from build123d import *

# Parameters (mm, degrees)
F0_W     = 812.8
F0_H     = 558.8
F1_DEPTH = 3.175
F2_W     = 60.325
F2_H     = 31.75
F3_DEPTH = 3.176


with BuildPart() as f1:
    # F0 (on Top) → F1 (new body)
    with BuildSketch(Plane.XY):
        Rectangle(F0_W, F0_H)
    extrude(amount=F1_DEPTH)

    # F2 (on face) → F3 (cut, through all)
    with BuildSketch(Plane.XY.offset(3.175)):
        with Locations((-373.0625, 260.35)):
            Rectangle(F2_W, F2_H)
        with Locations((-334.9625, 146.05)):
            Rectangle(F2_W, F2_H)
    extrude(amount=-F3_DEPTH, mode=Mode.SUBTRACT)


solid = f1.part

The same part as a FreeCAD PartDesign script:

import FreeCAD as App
import Part
import Sketcher
Q = App.Units.Quantity


def add_polygon(sketch, points):
    """Adds a closed chain of lines whose ends are joined by coincident constraints."""
    first, n = sketch.GeometryCount, len(points)
    for a, b in zip(points, points[1:] + points[:1]):
        sketch.addGeometry(Part.LineSegment(App.Vector(*a, 0), App.Vector(*b, 0)), False)
    for i in range(n):
        sketch.addConstraint(Sketcher.Constraint("Coincident", first + i, 2, first + (i + 1) % n, 1))

doc = App.newDocument("Part")
body = doc.addObject("PartDesign::Body", "Body")

# Sketch on XY plane
sketch1 = body.newObject("Sketcher::SketchObject", "Sketch")
sketch1.AttachmentSupport = (doc.getObject("XY_Plane"), [""])
sketch1.MapMode = "FlatFace"
add_polygon(sketch1, [(-406.4, 279.4), (-406.4, -279.4), (406.4, -279.4), (406.4, 279.4)])  # lines 0-3
sketch1.addConstraint([
    Sketcher.Constraint("Vertical", 0),
    Sketcher.Constraint("Horizontal", 1),
    Sketcher.Constraint("Vertical", 2),
    Sketcher.Constraint("Horizontal", 3),
    Sketcher.Constraint("Symmetric", 0, 2, 2, 2, -1, 1),
    Sketcher.Constraint("DistanceX", 1, 1, 1, 2, Q("32 in")),
    Sketcher.Constraint("DistanceY", 0, 2, 0, 1, Q("22 in")),
])
pad1 = body.newObject("PartDesign::Pad", "Pad")
pad1.Profile = sketch1
pad1.Length = Q("0.125 in")

# Sketch on XY plane
sketch2 = body.newObject("Sketcher::SketchObject", "Sketch001")
sketch2.AttachmentSupport = (doc.getObject("XY_Plane"), [""])
sketch2.MapMode = "FlatFace"
sketch2.AttachmentOffset = App.Placement(App.Vector(0, 0, 0.125 * 25.4), App.Rotation())
add_polygon(sketch2, [(-403.225, 276.225), (-403.225, 244.475), (-342.9, 244.475), (-342.9, 276.225)])  # lines 0-3
add_polygon(sketch2, [(-365.125, 161.925), (-365.125, 130.175), (-304.8, 130.175), (-304.8, 161.925)])  # lines 4-7
sketch2.addConstraint([
    Sketcher.Constraint("Vertical", 0),
    Sketcher.Constraint("Horizontal", 1),
    Sketcher.Constraint("Vertical", 2),
    Sketcher.Constraint("Horizontal", 3),
    Sketcher.Constraint("Vertical", 4),
    Sketcher.Constraint("Horizontal", 5),
    Sketcher.Constraint("Vertical", 6),
    Sketcher.Constraint("Horizontal", 7),
    Sketcher.Constraint("Equal", 3, 5),
    Sketcher.Constraint("Equal", 2, 4),
    Sketcher.Constraint("DistanceX", 5, 2, -1, 1, Q("12 in")),
    Sketcher.Constraint("DistanceY", 0, 2, 0, 1, Q("1.25 in")),
    Sketcher.Constraint("DistanceX", 1, 2, -1, 1, Q("13.5 in")),
    Sketcher.Constraint("DistanceY", 4, 2, 1, 2, Q("4.5 in")),
    Sketcher.Constraint("DistanceX", 1, 1, 1, 2, Q("2.375 in")),
    Sketcher.Constraint("DistanceY", -1, 1, 0, 2, Q("9.625 in")),
])
pocket1 = body.newObject("PartDesign::Pocket", "Pocket")
pocket1.Profile = sketch2
pocket1.Type = "ThroughAll"

doc.recompute()
